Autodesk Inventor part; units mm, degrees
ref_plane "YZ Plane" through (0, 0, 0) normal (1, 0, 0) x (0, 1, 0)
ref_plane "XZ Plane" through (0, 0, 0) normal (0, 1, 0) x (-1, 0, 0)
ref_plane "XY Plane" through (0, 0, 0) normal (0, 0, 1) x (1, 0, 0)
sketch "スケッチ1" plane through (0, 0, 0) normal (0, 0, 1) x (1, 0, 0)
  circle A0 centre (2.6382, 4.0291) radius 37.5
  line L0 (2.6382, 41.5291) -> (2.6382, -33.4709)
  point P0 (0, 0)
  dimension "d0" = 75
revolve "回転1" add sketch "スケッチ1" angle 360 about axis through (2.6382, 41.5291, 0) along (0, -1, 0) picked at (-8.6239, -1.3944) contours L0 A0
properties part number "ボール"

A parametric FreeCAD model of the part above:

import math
import FreeCAD as App
import Part
import Sketcher

V = App.Vector
Q = App.Units.Quantity

doc = App.newDocument("Part")
body = doc.addObject("PartDesign::Body", "Body")

# Sketch on XY plane
sketch1 = body.newObject("Sketcher::SketchObject", "Sketch")
sketch1.AttachmentSupport = (doc.getObject("XY_Plane"), [""])
sketch1.MapMode = "FlatFace"
sketch1.addGeometry([
    Part.LineSegment(V(2.6382, -33.4709, 0), V(2.6382, 41.5291, 0)),
    Part.ArcOfCircle(Part.Circle(V(2.6382, 4.0291, 0), V(0, 0, 1), 37.5), math.radians(90), math.radians(270)),
], False)
sketch1.addGeometry(Part.LineSegment(V(2.6382, 41.5291, 0), V(2.6382, -33.4709, 0)), True)  # axis
sketch1.addConstraint([
    Sketcher.Constraint("Coincident", 0, 1, 1, 2),
    Sketcher.Constraint("Coincident", 1, 1, 0, 2),
    Sketcher.Constraint("Vertical", 0),
    Sketcher.Constraint("Vertical", 2),
    Sketcher.Constraint("Coincident", 2, 1, 1, 1),
    Sketcher.Constraint("Vertical", 1, 3, 0, 1),
    Sketcher.Constraint("Equal", 0, 2),
    Sketcher.Constraint("Radius", 1, Q("37.5 mm")),
    Sketcher.Constraint("DistanceY", -1, 1, 1, 3, Q("4.029 mm")),
    Sketcher.Constraint("DistanceX", -1, 1, 1, 3, Q("2.6382 mm")),
])
revolution = body.newObject("PartDesign::Revolution", "Revolution")
revolution.Profile = sketch1
revolution.ReferenceAxis = (sketch1, ["Axis0"])
revolution.Angle = 360

doc.recompute()
